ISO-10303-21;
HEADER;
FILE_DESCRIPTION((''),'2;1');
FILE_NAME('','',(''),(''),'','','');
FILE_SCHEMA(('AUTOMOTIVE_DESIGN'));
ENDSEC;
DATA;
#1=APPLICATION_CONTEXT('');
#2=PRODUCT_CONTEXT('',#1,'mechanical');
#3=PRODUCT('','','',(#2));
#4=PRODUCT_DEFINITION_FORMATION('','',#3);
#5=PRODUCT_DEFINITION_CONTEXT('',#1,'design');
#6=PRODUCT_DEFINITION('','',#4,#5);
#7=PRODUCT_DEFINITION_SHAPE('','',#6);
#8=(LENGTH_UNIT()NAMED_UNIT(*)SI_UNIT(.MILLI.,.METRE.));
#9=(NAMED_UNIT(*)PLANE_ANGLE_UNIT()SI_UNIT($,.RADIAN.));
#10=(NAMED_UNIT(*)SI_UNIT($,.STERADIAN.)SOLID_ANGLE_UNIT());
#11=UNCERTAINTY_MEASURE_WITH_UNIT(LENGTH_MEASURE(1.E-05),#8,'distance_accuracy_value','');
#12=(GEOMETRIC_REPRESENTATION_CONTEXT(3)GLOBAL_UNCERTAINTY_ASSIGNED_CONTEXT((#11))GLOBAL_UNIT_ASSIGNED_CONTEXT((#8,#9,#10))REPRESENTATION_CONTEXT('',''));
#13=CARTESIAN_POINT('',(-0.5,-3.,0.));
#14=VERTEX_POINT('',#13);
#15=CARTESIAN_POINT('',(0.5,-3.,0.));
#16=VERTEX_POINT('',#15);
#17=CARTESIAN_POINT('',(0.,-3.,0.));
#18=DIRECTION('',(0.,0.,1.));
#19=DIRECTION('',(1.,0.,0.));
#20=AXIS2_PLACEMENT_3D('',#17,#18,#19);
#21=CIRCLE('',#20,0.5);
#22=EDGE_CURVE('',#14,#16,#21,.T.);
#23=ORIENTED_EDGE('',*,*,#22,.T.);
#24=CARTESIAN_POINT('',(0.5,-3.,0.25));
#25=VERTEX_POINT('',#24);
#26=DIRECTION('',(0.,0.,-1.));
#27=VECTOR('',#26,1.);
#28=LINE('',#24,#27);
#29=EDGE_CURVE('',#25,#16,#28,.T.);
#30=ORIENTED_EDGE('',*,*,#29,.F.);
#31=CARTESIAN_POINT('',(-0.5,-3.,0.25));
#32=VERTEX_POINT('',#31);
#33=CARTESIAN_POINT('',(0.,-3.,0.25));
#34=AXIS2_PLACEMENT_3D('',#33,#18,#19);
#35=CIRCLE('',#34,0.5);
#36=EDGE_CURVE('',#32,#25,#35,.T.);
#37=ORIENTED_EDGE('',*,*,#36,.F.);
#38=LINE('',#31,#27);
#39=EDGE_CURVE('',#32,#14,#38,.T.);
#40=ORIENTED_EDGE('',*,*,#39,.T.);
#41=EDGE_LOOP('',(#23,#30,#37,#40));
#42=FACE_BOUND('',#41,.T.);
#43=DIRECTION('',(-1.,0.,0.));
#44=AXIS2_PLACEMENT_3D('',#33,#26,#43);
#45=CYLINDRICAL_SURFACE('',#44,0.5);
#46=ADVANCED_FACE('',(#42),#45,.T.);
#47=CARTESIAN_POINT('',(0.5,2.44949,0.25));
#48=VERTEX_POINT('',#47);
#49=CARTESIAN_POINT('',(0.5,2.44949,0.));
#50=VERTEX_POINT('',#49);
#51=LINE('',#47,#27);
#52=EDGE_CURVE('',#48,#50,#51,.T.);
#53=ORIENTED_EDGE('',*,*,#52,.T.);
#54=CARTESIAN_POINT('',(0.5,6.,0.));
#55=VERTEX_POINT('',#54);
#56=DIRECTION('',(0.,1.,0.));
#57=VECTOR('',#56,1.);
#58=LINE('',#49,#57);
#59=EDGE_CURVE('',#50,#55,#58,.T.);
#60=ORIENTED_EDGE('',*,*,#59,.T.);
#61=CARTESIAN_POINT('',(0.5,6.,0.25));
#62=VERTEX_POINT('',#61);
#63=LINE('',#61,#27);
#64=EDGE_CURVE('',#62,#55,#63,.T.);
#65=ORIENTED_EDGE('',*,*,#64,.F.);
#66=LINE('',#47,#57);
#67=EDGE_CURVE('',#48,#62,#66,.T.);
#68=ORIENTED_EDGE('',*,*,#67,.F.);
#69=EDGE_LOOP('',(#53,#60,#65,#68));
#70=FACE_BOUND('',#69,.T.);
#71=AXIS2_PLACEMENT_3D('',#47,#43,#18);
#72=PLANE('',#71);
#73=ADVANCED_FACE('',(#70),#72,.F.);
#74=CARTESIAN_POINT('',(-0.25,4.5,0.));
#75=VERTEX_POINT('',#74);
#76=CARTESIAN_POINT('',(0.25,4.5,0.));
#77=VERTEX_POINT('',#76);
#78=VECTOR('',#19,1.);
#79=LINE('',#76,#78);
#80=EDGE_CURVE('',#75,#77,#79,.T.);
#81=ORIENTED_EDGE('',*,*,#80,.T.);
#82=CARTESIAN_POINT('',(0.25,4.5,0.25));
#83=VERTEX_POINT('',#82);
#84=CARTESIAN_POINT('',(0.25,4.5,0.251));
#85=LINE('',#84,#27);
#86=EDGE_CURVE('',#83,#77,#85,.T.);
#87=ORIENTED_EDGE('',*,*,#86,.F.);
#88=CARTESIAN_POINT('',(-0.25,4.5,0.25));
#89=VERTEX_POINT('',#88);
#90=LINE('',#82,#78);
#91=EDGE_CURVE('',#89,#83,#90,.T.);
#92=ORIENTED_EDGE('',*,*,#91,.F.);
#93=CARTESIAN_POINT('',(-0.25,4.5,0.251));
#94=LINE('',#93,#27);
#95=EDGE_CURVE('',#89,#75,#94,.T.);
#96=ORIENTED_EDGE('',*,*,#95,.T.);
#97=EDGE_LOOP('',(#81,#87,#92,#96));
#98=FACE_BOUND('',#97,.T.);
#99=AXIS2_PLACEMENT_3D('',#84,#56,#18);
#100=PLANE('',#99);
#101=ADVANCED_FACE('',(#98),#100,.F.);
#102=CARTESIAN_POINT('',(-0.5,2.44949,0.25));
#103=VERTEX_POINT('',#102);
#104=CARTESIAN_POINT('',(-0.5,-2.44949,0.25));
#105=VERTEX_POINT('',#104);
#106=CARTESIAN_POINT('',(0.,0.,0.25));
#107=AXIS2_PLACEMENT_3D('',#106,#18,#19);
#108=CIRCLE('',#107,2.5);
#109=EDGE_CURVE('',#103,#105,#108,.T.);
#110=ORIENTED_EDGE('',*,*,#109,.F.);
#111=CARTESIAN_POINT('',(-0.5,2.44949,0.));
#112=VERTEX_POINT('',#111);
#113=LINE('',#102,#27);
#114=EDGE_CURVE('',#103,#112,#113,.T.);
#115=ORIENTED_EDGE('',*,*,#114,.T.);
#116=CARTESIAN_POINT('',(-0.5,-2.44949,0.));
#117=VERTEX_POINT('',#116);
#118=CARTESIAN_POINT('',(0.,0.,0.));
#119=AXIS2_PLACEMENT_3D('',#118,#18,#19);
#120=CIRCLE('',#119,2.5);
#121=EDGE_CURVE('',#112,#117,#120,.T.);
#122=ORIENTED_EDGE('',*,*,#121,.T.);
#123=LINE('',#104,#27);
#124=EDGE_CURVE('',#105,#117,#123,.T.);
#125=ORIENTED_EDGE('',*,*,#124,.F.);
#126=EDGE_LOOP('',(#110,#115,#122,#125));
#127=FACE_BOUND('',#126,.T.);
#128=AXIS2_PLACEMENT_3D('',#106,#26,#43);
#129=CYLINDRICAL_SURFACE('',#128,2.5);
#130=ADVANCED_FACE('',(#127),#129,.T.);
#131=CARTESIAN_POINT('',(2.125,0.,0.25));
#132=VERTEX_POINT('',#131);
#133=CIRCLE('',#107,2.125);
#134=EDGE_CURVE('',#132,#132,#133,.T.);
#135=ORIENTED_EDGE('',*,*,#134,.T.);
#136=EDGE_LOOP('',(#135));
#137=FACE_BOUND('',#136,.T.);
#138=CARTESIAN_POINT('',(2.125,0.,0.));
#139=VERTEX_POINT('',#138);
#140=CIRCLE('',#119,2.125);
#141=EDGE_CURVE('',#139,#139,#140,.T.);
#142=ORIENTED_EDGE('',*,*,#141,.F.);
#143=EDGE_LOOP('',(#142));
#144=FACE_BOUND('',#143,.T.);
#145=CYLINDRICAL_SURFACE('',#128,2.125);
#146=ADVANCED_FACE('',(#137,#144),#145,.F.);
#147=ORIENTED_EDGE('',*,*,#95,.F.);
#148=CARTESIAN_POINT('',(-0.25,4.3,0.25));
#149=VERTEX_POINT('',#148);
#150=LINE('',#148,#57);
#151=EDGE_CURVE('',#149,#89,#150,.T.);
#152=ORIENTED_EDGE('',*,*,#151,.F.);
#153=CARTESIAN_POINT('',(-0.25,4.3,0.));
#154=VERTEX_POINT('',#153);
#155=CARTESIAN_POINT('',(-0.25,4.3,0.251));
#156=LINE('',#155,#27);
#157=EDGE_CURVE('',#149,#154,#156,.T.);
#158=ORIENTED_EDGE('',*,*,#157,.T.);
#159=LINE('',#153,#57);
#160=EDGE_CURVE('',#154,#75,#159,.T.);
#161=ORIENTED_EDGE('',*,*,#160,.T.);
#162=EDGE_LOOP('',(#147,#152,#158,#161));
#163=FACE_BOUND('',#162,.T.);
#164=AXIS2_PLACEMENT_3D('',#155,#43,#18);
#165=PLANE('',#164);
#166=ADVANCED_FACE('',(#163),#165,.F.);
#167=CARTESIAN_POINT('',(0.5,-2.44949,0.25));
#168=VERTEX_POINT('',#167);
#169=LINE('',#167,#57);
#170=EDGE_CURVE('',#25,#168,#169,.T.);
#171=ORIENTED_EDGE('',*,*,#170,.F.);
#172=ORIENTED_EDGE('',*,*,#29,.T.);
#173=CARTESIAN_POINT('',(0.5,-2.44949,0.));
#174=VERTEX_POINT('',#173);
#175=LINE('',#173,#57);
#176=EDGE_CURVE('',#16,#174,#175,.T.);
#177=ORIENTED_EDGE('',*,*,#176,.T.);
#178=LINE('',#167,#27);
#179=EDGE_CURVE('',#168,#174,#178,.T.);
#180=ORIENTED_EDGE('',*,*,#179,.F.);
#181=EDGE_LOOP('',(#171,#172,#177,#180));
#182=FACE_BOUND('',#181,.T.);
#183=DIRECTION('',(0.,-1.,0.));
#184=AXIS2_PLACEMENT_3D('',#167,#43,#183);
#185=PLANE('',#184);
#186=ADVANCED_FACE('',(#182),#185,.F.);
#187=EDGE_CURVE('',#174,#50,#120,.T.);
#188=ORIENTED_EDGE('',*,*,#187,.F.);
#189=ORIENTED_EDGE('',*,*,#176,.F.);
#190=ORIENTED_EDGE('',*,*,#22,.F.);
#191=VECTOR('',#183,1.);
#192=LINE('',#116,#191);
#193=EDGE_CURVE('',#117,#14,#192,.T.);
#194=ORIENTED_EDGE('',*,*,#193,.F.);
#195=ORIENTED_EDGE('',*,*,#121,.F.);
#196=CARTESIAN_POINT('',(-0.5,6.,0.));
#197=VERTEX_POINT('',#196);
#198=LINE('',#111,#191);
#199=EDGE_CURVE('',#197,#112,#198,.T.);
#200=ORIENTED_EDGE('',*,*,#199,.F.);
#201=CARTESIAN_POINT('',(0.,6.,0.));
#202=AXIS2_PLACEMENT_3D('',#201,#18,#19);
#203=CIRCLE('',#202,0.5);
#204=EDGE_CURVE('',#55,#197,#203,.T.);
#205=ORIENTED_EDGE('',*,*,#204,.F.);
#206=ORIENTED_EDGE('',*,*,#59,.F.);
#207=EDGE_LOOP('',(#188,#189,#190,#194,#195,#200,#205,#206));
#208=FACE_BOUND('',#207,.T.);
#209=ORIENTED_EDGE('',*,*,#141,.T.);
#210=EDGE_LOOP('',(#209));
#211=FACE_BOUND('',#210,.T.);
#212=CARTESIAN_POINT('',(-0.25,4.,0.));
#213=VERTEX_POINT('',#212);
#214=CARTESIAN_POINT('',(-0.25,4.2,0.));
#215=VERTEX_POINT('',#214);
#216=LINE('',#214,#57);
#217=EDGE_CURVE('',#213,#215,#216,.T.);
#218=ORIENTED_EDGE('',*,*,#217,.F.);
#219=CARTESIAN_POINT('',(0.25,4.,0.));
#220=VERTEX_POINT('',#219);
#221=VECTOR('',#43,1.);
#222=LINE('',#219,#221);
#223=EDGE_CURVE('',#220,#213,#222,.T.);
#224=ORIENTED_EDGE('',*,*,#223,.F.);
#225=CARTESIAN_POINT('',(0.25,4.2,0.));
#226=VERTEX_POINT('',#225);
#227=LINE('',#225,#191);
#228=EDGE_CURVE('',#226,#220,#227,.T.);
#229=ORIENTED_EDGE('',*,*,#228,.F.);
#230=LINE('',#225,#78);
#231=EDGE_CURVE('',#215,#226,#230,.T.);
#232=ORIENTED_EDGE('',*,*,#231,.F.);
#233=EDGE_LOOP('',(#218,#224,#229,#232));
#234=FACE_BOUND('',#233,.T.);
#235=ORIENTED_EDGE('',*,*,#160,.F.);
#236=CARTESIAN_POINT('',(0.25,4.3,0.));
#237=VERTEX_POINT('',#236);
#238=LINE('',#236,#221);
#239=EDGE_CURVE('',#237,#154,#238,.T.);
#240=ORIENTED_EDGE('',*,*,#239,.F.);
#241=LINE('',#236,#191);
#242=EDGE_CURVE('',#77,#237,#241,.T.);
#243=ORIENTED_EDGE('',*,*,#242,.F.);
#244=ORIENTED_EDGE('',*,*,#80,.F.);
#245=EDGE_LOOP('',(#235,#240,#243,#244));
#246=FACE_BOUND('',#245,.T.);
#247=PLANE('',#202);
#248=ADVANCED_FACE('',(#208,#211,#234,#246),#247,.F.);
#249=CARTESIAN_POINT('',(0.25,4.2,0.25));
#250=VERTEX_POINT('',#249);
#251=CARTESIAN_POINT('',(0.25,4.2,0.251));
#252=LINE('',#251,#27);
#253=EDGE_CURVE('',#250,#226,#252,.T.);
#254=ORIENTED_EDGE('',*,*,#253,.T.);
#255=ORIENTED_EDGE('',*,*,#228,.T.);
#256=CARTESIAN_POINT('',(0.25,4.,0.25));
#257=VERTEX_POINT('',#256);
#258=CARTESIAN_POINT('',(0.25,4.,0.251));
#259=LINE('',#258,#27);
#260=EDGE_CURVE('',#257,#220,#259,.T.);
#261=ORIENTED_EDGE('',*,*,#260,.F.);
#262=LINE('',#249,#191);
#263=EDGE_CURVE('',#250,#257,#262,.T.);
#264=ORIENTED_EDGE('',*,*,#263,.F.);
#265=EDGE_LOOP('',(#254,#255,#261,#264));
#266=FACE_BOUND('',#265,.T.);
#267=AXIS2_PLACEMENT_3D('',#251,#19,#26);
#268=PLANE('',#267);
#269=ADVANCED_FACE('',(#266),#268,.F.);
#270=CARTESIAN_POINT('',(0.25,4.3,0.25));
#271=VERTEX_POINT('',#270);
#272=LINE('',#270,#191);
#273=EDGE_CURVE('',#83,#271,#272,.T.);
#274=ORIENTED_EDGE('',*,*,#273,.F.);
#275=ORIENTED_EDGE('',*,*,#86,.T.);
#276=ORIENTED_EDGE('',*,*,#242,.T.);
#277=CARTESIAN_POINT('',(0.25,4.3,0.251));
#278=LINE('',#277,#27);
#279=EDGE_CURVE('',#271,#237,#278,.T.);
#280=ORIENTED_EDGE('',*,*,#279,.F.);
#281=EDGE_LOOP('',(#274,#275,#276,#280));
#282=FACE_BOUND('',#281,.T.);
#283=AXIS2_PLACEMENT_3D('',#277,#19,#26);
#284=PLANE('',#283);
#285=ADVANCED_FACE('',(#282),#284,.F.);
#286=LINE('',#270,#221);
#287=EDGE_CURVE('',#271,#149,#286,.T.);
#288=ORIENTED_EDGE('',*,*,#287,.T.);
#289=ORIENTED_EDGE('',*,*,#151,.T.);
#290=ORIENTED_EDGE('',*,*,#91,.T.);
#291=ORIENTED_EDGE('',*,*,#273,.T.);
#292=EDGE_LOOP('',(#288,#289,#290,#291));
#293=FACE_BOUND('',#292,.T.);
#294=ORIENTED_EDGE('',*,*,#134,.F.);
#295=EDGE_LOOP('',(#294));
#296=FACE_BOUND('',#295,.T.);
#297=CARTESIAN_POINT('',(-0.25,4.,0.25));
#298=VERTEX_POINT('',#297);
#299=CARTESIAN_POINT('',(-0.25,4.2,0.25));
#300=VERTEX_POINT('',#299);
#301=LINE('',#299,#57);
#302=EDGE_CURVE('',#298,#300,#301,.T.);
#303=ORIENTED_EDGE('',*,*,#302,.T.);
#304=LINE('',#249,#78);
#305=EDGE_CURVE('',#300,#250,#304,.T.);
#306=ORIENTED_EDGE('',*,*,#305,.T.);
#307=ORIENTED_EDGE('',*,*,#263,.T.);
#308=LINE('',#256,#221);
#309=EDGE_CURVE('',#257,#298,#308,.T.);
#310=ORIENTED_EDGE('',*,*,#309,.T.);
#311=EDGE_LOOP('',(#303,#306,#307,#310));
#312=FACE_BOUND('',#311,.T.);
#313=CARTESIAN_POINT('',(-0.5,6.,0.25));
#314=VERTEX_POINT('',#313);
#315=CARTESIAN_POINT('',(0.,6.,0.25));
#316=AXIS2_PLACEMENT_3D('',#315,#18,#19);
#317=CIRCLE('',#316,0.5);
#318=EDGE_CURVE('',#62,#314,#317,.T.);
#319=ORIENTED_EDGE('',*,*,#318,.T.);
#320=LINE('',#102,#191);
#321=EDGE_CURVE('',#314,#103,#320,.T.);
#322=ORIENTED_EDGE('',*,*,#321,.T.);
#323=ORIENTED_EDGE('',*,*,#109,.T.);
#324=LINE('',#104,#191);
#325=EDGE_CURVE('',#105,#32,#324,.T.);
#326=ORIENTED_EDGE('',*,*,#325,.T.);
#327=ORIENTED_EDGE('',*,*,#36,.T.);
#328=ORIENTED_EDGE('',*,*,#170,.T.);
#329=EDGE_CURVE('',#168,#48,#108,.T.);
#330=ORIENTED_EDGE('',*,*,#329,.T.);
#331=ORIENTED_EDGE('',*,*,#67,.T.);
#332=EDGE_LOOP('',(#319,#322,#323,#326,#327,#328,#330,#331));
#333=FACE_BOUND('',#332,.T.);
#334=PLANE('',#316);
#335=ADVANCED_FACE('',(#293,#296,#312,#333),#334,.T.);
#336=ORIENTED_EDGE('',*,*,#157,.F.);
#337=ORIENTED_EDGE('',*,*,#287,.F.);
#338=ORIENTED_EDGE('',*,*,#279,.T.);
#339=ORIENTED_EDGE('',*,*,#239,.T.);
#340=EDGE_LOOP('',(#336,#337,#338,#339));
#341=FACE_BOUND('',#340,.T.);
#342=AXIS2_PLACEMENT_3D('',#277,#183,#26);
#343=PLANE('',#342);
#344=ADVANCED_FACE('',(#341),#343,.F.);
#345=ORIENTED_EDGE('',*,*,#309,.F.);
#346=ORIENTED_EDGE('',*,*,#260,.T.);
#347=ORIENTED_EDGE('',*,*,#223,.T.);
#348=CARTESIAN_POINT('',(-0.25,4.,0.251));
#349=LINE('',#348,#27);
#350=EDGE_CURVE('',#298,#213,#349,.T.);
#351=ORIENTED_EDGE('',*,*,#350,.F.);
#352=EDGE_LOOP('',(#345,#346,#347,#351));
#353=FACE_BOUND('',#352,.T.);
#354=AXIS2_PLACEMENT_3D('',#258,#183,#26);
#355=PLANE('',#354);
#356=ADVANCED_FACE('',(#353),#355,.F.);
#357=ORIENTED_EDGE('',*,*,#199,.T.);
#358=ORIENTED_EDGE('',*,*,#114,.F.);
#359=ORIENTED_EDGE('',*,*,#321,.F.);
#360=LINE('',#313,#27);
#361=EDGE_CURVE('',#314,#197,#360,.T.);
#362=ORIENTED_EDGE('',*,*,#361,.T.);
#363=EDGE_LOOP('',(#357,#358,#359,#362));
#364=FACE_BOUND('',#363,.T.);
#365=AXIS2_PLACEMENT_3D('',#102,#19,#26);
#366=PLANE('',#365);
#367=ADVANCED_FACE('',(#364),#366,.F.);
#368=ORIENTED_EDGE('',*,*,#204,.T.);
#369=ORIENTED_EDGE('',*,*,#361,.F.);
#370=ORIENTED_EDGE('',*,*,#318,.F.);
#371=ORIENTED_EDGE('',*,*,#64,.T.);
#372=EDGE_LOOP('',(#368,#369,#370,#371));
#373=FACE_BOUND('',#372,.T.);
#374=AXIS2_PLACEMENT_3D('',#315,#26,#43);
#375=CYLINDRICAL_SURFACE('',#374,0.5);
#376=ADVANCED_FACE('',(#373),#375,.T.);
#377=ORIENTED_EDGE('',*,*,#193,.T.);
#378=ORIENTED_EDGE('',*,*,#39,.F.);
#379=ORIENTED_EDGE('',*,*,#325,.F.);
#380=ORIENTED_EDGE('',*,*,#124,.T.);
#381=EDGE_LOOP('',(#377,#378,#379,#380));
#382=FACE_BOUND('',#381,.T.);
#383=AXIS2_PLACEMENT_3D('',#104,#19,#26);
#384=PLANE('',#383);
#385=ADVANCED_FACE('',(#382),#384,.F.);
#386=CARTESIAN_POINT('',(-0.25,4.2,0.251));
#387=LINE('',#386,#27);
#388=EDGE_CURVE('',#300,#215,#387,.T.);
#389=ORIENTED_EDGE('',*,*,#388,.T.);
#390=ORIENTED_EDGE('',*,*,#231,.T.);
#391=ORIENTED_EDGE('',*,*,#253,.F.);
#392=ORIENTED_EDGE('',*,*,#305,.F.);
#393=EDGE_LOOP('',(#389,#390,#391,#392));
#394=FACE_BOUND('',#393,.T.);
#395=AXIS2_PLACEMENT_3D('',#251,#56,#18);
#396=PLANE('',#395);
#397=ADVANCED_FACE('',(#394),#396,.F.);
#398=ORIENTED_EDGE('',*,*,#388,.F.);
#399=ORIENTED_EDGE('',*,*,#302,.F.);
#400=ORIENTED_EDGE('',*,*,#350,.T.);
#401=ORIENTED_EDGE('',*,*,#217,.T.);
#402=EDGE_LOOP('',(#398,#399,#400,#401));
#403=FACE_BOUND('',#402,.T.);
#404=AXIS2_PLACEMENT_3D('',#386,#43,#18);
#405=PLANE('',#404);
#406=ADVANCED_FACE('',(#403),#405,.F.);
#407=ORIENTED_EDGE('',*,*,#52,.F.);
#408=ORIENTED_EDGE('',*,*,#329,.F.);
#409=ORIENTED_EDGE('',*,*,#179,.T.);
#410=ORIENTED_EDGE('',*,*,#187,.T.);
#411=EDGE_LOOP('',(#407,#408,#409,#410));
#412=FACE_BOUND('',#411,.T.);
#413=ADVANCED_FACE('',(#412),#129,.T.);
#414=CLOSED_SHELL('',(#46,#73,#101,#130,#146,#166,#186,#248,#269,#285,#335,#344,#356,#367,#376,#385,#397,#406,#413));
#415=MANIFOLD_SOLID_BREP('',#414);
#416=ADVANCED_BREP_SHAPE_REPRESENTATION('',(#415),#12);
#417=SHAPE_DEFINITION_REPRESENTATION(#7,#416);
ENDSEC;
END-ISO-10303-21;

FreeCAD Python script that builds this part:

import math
import FreeCAD as App
import Part
import Sketcher
from FreeCAD import Vector
Q = App.Units.Quantity

doc = App.newDocument("Part")
body = doc.addObject("PartDesign::Body", "Body")

# Sketch on XY plane
sketch1 = body.newObject("Sketcher::SketchObject", "Sketch")
sketch1.AttachmentSupport = (doc.getObject("XY_Plane"), [""])
sketch1.MapMode = "FlatFace"
sketch1.addGeometry(Part.LineSegment(Vector(-0.5, -2.44949, 0), Vector(-0.5, -3, 0)), False)
sketch1.addGeometry(Part.ArcOfCircle(Part.Circle(Vector(0, -3, 0), Vector(0, 0, 1), 0.5), math.radians(180), math.radians(360)), False)
sketch1.addGeometry(Part.LineSegment(Vector(0.5, -3, 0), Vector(0.5, -2.44949, 0)), False)
sketch1.addGeometry(Part.ArcOfCircle(Part.Circle(Vector(0, 0, 0), Vector(0, 0, 1), 2.5), math.radians(-78.463041), math.radians(78.463041)), False)
sketch1.addGeometry(Part.LineSegment(Vector(0.5, 2.44949, 0), Vector(0.5, 6, 0)), False)
sketch1.addGeometry(Part.ArcOfCircle(Part.Circle(Vector(0, 6, 0), Vector(0, 0, 1), 0.5), math.radians(0), math.radians(180)), False)
sketch1.addGeometry(Part.LineSegment(Vector(-0.5, 6, 0), Vector(-0.5, 2.44949, 0)), False)
sketch1.addGeometry(Part.ArcOfCircle(Part.Circle(Vector(0, 0, 0), Vector(0, 0, 1), 2.5), math.radians(101.536959), math.radians(258.463041)), False)
sketch1.addGeometry(Part.ArcOfCircle(Part.Circle(Vector(0, 0, 0), Vector(0, 0, 1), 2.125), math.radians(-173.243673), math.radians(-90)), False)
sketch1.addGeometry(Part.ArcOfCircle(Part.Circle(Vector(0, 0, 0), Vector(0, 0, 1), 2.125), math.radians(90), math.radians(186.756327)), False)
sketch1.addGeometry(Part.ArcOfCircle(Part.Circle(Vector(0, 0, 0), Vector(0, 0, 1), 2.125), math.radians(-6.756327), math.radians(90)), False)
sketch1.addGeometry(Part.ArcOfCircle(Part.Circle(Vector(0, 0, 0), Vector(0, 0, 1), 2.125), math.radians(-90), math.radians(-6.756327)), False)
sketch1.addConstraint(Sketcher.Constraint("Tangent", 0, 2, 1, 1))
sketch1.addConstraint(Sketcher.Constraint("Tangent", 1, 2, 2, 1))
sketch1.addConstraint(Sketcher.Constraint("Coincident", 2, 2, 3, 1))
sketch1.addConstraint(Sketcher.Constraint("Coincident", 3, 2, 4, 1))
sketch1.addConstraint(Sketcher.Constraint("Tangent", 4, 2, 5, 1))
sketch1.addConstraint(Sketcher.Constraint("Tangent", 5, 2, 6, 1))
sketch1.addConstraint(Sketcher.Constraint("Coincident", 6, 2, 7, 1))
sketch1.addConstraint(Sketcher.Constraint("Coincident", 7, 2, 0, 1))
sketch1.addConstraint(Sketcher.Constraint("Tangent", 8, 1, 9, 2))
sketch1.addConstraint(Sketcher.Constraint("Tangent", 9, 1, 10, 2))
sketch1.addConstraint(Sketcher.Constraint("Tangent", 10, 1, 11, 2))
sketch1.addConstraint(Sketcher.Constraint("Tangent", 11, 1, 8, 2))
sketch1.addConstraint(Sketcher.Constraint("Vertical", 0))
sketch1.addConstraint(Sketcher.Constraint("Vertical", 2))
sketch1.addConstraint(Sketcher.Constraint("Vertical", 4))
sketch1.addConstraint(Sketcher.Constraint("Vertical", 6))
sketch1.addConstraint(Sketcher.Constraint("Coincident", 3, 3, -1, 1))
sketch1.addConstraint(Sketcher.Constraint("Coincident", 7, 3, -1, 1))
sketch1.addConstraint(Sketcher.Constraint("Coincident", 8, 3, -1, 1))
sketch1.addConstraint(Sketcher.Constraint("Equal", 1, 5))
sketch1.addConstraint(Sketcher.Constraint("Equal", 3, 7))
sketch1.addConstraint(Sketcher.Constraint("Equal", 8, 9))
sketch1.addConstraint(Sketcher.Constraint("PointOnObject", 1, 3, -2))
sketch1.addConstraint(Sketcher.Constraint("PointOnObject", 5, 3, -2))
sketch1.addConstraint(Sketcher.Constraint("PointOnObject", 9, 1, -2))
sketch1.addConstraint(Sketcher.Constraint("PointOnObject", 11, 1, -2))
sketch1.addConstraint(Sketcher.Constraint("Horizontal", 8, 1, 10, 1))
sketch1.addConstraint(Sketcher.Constraint("Radius", 1, Q("0.5 mm")))
sketch1.addConstraint(Sketcher.Constraint("Radius", 3, Q("2.5 mm")))
sketch1.addConstraint(Sketcher.Constraint("DistanceY", 1, 3, -1, 1, Q("3 mm")))
sketch1.addConstraint(Sketcher.Constraint("DistanceY", -1, 1, 5, 3, Q("6 mm")))
sketch1.addConstraint(Sketcher.Constraint("Radius", 8, Q("2.125 mm")))
sketch1.addConstraint(Sketcher.Constraint("DistanceY", 8, 1, -1, 1, Q("0.25 mm")))
pad1 = body.newObject("PartDesign::Pad", "Pad")
pad1.Profile = sketch1
pad1.Length = 0.25

# Sketch on XY plane
sketch2 = body.newObject("Sketcher::SketchObject", "Sketch001")
sketch2.AttachmentSupport = (doc.getObject("XY_Plane"), [""])
sketch2.MapMode = "FlatFace"
sketch2.addGeometry(Part.LineSegment(Vector(0.25, 4.5, 0), Vector(0.25, 4.3, 0)), False)
sketch2.addGeometry(Part.LineSegment(Vector(0.25, 4.3, 0), Vector(-0.25, 4.3, 0)), False)
sketch2.addGeometry(Part.LineSegment(Vector(-0.25, 4.3, 0), Vector(-0.25, 4.5, 0)), False)
sketch2.addGeometry(Part.LineSegment(Vector(-0.25, 4.5, 0), Vector(0.25, 4.5, 0)), False)
sketch2.addConstraint(Sketcher.Constraint("Coincident", 0, 2, 1, 1))
sketch2.addConstraint(Sketcher.Constraint("Coincident", 1, 2, 2, 1))
sketch2.addConstraint(Sketcher.Constraint("Coincident", 2, 2, 3, 1))
sketch2.addConstraint(Sketcher.Constraint("Coincident", 3, 2, 0, 1))
sketch2.addConstraint(Sketcher.Constraint("Vertical", 0))
sketch2.addConstraint(Sketcher.Constraint("Horizontal", 1))
sketch2.addConstraint(Sketcher.Constraint("Vertical", 2))
sketch2.addConstraint(Sketcher.Constraint("Horizontal", 3))
sketch2.addConstraint(Sketcher.Constraint("DistanceX", 1, 2, 1, 1, Q("0.5 mm")))
sketch2.addConstraint(Sketcher.Constraint("DistanceY", 0, 2, 0, 1, Q("0.2 mm")))
sketch2.addConstraint(Sketcher.Constraint("DistanceY", -1, 1, 0, 2, Q("4.3 mm")))
sketch2.addConstraint(Sketcher.Constraint("DistanceX", -1, 1, 0, 2, Q("0.25 mm")))
pocket1 = body.newObject("PartDesign::Pocket", "Pocket")
pocket1.Profile = sketch2
pocket1.Type = "UpToFirst"
pocket1.Reversed = True

# Sketch on XY plane
sketch3 = body.newObject("Sketcher::SketchObject", "Sketch002")
sketch3.AttachmentSupport = (doc.getObject("XY_Plane"), [""])
sketch3.MapMode = "FlatFace"
sketch3.addGeometry(Part.LineSegment(Vector(0.25, 4.2, 0), Vector(0.25, 4, 0)), False)
sketch3.addGeometry(Part.LineSegment(Vector(0.25, 4, 0), Vector(-0.25, 4, 0)), False)
sketch3.addGeometry(Part.LineSegment(Vector(-0.25, 4, 0), Vector(-0.25, 4.2, 0)), False)
sketch3.addGeometry(Part.LineSegment(Vector(-0.25, 4.2, 0), Vector(0.25, 4.2, 0)), False)
sketch3.addConstraint(Sketcher.Constraint("Coincident", 0, 2, 1, 1))
sketch3.addConstraint(Sketcher.Constraint("Coincident", 1, 2, 2, 1))
sketch3.addConstraint(Sketcher.Constraint("Coincident", 2, 2, 3, 1))
sketch3.addConstraint(Sketcher.Constraint("Coincident", 3, 2, 0, 1))
sketch3.addConstraint(Sketcher.Constraint("Vertical", 0))
sketch3.addConstraint(Sketcher.Constraint("Horizontal", 1))
sketch3.addConstraint(Sketcher.Constraint("Vertical", 2))
sketch3.addConstraint(Sketcher.Constraint("Horizontal", 3))
sketch3.addConstraint(Sketcher.Constraint("DistanceX", 1, 2, 1, 1, Q("0.5 mm")))
sketch3.addConstraint(Sketcher.Constraint("DistanceY", 0, 2, 0, 1, Q("0.2 mm")))
sketch3.addConstraint(Sketcher.Constraint("DistanceY", -1, 1, 0, 2, Q("4 mm")))
sketch3.addConstraint(Sketcher.Constraint("DistanceX", -1, 1, 0, 2, Q("0.25 mm")))
pocket2 = body.newObject("PartDesign::Pocket", "Pocket001")
pocket2.Profile = sketch3
pocket2.Type = "UpToFirst"
pocket2.Reversed = True

doc.recompute()
